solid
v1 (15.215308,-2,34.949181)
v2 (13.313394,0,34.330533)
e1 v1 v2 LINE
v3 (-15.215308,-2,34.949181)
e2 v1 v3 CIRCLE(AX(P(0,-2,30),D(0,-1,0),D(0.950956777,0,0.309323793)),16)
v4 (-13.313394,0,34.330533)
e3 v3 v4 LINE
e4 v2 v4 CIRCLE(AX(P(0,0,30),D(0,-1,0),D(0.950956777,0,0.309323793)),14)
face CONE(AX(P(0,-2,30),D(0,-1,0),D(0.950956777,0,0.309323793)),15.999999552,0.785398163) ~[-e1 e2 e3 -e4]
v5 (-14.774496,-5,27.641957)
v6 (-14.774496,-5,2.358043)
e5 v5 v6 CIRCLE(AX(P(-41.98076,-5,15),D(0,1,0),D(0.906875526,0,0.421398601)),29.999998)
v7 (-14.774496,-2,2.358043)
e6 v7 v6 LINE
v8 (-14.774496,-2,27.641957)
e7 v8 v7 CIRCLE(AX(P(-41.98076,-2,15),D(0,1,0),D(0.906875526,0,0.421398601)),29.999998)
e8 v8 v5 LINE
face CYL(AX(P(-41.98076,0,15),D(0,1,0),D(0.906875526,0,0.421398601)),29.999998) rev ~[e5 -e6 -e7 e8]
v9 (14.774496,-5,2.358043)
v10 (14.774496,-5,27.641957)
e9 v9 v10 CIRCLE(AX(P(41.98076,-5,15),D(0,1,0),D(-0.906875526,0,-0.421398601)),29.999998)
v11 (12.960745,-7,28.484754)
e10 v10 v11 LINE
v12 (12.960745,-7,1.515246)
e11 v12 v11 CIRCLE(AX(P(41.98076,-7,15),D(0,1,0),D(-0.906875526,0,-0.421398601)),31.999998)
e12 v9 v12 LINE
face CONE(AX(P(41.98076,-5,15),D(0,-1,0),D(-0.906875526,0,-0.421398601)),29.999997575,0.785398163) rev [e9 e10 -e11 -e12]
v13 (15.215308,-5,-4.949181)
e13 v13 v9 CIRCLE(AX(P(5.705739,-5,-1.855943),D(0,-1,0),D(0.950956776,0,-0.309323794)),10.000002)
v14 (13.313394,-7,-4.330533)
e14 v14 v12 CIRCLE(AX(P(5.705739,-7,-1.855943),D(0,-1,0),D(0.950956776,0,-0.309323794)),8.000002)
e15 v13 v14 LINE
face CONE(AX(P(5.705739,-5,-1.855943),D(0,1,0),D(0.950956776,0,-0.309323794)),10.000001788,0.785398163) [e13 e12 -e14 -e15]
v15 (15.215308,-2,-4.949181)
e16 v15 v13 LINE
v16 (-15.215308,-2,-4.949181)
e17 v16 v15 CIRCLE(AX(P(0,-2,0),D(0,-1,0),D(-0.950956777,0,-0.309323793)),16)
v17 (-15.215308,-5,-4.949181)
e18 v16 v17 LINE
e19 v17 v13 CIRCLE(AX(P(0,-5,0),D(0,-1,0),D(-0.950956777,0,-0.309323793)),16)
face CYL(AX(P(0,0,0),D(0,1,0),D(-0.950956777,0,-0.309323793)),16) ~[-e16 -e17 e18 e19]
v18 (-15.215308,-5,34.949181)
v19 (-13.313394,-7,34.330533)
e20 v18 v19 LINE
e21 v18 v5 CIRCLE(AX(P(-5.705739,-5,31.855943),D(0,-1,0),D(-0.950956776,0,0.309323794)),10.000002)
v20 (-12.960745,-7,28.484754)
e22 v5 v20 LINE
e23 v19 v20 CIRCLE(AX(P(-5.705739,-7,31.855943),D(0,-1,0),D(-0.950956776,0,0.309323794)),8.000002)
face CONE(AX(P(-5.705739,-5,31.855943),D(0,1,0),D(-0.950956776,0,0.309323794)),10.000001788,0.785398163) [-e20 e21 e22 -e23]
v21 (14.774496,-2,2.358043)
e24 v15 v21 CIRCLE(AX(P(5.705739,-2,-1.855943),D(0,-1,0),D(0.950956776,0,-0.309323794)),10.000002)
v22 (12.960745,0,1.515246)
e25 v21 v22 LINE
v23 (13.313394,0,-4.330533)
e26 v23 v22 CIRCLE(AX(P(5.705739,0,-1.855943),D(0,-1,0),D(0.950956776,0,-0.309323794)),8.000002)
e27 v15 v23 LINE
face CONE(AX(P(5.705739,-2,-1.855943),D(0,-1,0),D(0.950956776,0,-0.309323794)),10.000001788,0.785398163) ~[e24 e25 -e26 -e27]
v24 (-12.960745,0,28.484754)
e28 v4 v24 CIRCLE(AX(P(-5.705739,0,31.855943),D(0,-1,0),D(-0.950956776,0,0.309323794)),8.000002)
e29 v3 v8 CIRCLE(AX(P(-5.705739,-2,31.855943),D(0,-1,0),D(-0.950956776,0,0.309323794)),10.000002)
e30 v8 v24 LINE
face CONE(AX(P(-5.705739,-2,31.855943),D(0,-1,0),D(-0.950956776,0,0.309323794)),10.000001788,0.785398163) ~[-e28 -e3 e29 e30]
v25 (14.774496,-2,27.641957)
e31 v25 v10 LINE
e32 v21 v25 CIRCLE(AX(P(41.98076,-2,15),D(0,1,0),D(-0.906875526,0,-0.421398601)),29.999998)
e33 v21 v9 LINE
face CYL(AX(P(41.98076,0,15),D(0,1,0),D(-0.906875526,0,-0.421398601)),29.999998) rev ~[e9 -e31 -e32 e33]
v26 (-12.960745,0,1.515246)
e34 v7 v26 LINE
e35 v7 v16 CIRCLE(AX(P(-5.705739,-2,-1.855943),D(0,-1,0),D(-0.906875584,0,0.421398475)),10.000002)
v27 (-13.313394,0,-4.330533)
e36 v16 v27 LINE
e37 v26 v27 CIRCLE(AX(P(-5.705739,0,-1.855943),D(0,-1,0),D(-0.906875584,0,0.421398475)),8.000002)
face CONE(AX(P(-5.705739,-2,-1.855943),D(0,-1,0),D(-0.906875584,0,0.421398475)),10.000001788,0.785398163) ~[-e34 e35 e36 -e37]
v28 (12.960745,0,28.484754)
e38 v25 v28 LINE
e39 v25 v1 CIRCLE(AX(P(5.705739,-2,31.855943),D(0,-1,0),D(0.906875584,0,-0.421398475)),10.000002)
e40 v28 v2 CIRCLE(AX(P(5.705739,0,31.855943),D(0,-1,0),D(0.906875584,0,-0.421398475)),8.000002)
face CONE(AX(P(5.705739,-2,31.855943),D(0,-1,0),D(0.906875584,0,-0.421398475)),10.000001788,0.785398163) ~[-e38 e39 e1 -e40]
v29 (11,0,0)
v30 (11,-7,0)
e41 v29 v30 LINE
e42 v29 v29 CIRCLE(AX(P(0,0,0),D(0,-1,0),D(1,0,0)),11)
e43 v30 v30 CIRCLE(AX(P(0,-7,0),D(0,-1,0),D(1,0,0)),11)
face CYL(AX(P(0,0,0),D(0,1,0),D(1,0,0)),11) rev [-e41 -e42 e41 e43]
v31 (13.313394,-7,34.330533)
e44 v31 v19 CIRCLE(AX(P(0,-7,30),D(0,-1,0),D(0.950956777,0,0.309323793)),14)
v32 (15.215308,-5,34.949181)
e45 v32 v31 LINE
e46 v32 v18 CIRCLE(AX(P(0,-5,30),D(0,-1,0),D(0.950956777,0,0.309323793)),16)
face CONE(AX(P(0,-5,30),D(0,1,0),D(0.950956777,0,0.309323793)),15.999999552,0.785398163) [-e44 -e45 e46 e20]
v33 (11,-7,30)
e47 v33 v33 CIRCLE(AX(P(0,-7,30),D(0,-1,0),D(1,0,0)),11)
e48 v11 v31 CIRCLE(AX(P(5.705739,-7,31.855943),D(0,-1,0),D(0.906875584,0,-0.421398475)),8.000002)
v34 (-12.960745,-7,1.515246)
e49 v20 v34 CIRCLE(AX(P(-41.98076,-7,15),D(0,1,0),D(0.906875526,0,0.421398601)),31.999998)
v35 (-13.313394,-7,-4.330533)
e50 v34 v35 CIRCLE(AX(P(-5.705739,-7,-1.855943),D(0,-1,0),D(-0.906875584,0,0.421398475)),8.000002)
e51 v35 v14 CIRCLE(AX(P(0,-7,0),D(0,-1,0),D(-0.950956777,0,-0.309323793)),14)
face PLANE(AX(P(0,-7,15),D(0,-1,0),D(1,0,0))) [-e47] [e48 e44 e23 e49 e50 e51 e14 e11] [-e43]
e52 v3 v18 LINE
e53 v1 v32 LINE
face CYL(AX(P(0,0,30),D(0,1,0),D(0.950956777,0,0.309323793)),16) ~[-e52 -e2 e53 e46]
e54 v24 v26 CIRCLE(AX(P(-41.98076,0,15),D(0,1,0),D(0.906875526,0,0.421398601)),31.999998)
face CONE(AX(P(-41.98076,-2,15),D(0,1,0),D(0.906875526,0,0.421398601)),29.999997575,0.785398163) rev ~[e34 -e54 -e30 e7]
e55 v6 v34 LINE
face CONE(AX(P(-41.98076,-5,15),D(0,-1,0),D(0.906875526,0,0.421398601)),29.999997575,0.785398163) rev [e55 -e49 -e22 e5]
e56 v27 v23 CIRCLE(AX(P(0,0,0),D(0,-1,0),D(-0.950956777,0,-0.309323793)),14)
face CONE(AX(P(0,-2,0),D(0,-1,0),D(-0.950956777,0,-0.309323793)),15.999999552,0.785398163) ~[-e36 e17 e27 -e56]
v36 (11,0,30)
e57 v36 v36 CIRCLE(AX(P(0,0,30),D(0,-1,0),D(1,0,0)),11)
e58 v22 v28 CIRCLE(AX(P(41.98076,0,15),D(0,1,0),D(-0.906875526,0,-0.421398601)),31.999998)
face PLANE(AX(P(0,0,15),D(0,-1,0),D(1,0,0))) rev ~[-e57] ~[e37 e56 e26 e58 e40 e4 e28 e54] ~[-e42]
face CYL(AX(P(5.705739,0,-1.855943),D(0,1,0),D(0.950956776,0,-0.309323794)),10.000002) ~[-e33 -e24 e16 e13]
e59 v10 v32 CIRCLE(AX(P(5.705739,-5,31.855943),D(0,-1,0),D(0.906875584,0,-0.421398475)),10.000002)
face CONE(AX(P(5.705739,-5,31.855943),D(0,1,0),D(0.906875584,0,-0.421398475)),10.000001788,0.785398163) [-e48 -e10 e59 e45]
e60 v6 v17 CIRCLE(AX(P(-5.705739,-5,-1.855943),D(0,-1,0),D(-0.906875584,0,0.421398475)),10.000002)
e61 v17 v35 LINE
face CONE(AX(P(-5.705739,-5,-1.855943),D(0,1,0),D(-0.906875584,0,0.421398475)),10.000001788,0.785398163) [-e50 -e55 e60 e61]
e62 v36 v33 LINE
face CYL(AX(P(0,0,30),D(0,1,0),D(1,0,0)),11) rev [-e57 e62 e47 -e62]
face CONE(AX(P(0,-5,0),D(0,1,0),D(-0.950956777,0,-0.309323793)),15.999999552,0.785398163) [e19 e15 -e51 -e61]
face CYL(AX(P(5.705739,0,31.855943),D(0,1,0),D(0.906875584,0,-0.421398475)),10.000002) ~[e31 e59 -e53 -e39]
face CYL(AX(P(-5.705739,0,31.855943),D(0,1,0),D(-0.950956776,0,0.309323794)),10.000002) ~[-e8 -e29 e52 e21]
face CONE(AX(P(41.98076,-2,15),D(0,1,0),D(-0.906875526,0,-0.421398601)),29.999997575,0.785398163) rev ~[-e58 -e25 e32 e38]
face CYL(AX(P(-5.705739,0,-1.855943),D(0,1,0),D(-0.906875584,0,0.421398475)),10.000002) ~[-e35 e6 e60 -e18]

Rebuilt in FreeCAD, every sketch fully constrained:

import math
import FreeCAD as App
import Part
import Sketcher

V = App.Vector


def edges_at(feature, points):
    """Names of the edges that pass closest to the given points."""
    edges = feature.Shape.Edges
    near = lambda p: min(range(len(edges)), key=lambda i: edges[i].distToShape(Part.Vertex(*p))[0])
    return sorted({f"Edge{near(p) + 1}" for p in points})

doc = App.newDocument("Part")
body = doc.addObject("PartDesign::Body", "Body")

# Sketch on XZ plane
sketch1 = body.newObject("Sketcher::SketchObject", "Sketch")
sketch1.AttachmentSupport = (doc.getObject("XZ_Plane"), [""])
sketch1.MapMode = "FlatFace"
sketch1.addGeometry(Part.ArcOfCircle(Part.Circle(V(6, 32, 0), V(0, 0, 1), 10), math.radians(-25), math.radians(18)), False)
sketch1.addGeometry(Part.ArcOfCircle(Part.Circle(V(0, 30, 0), V(0, 0, 1), 16), math.radians(18), math.radians(162)), False)
sketch1.addGeometry(Part.ArcOfCircle(Part.Circle(V(-6, 32, 0), V(0, 0, 1), 10), math.radians(162), math.radians(205)), False)
sketch1.addGeometry(Part.ArcOfCircle(Part.Circle(V(-42, 15, 0), V(0, 0, 1), 30), math.radians(-25), math.radians(25)), False)
sketch1.addGeometry(Part.ArcOfCircle(Part.Circle(V(-6, -2, 0), V(0, 0, 1), 10), math.radians(155), math.radians(198)), False)
sketch1.addGeometry(Part.ArcOfCircle(Part.Circle(V(0, 0, 0), V(0, 0, 1), 16), math.radians(-162), math.radians(-18)), False)
sketch1.addGeometry(Part.ArcOfCircle(Part.Circle(V(6, -2, 0), V(0, 0, 1), 10), math.radians(-18), math.radians(25)), False)
sketch1.addGeometry(Part.ArcOfCircle(Part.Circle(V(42, 15, 0), V(0, 0, 1), 30), math.radians(155), math.radians(205)), False)
sketch1.addGeometry(Part.Circle(V(0, 0, 0), V(0, 0, 1), 11), False)
sketch1.addGeometry(Part.Circle(V(0, 30, 0), V(0, 0, 1), 11), False)
sketch1.addConstraint(Sketcher.Constraint("Tangent", 0, 2, 1, 1))
sketch1.addConstraint(Sketcher.Constraint("Tangent", 1, 2, 2, 1))
sketch1.addConstraint(Sketcher.Constraint("Tangent", 2, 2, 3, 2))
sketch1.addConstraint(Sketcher.Constraint("Tangent", 3, 1, 4, 1))
sketch1.addConstraint(Sketcher.Constraint("Tangent", 4, 2, 5, 1))
sketch1.addConstraint(Sketcher.Constraint("Tangent", 5, 2, 6, 1))
sketch1.addConstraint(Sketcher.Constraint("Tangent", 6, 2, 7, 2))
sketch1.addConstraint(Sketcher.Constraint("Tangent", 7, 1, 0, 1))
sketch1.addConstraint(Sketcher.Constraint("Coincident", 5, 3, -1, 1))
sketch1.addConstraint(Sketcher.Constraint("Coincident", 8, 3, -1, 1))
sketch1.addConstraint(Sketcher.Constraint("Coincident", 9, 3, 1, 3))
sketch1.addConstraint(Sketcher.Constraint("Equal", 0, 2))
sketch1.addConstraint(Sketcher.Constraint("Equal", 2, 4))
sketch1.addConstraint(Sketcher.Constraint("Equal", 1, 5))
sketch1.addConstraint(Sketcher.Constraint("Equal", 4, 6))
sketch1.addConstraint(Sketcher.Constraint("Equal", 3, 7))
sketch1.addConstraint(Sketcher.Constraint("Equal", 8, 9))
sketch1.addConstraint(Sketcher.Constraint("Symmetric", 0, 3, 2, 3, -2))
sketch1.addConstraint(Sketcher.Constraint("Horizontal", 4, 3, 6, 3))
sketch1.addConstraint(Sketcher.Constraint("Vertical", 2, 3, 4, 3))
sketch1.addConstraint(Sketcher.Constraint("Diameter", 8, 22.0))
sketch1.addConstraint(Sketcher.Constraint("Radius", 0, 10.000002))
sketch1.addConstraint(Sketcher.Constraint("Radius", 1, 16.0))
sketch1.addConstraint(Sketcher.Constraint("DistanceY", -1, 1, 1, 3, 30.0))
sketch1.addConstraint(Sketcher.Constraint("Radius", 3, 29.999998))
sketch1.addConstraint(Sketcher.Constraint("DistanceX", 3, 3, 0, 3, 47.686498))
pad1 = body.newObject("PartDesign::Pad", "Pad")
pad1.Profile = sketch1
pad1.Length = 7
doc.recompute()

chamfer = body.newObject("PartDesign::Chamfer", "Chamfer")
chamfer.Base = (pad1, edges_at(pad1, [(0, -7, 46), (0, 0, 46)]))
chamfer.Size = 2

doc.recompute()
